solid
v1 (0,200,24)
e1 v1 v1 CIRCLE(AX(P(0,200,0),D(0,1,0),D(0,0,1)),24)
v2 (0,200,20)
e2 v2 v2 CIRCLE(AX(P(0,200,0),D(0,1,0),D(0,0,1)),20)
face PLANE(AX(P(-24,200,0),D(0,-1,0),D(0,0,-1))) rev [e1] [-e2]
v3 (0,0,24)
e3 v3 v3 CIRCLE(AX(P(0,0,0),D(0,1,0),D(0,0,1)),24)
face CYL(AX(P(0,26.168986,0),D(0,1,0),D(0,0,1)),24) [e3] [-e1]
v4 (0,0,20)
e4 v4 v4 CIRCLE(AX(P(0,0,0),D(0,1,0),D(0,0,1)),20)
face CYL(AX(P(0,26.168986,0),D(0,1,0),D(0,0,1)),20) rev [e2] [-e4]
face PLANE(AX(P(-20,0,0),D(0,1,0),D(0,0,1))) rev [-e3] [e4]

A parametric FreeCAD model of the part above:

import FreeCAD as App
import Part
import Sketcher
from FreeCAD import Vector
Q = App.Units.Quantity


def add_polygon(sketch, points):
    """Adds a closed chain of lines whose ends are joined by coincident constraints."""
    first, n = sketch.GeometryCount, len(points)
    for a, b in zip(points, points[1:] + points[:1]):
        sketch.addGeometry(Part.LineSegment(App.Vector(*a, 0), App.Vector(*b, 0)), False)
    for i in range(n):
        sketch.addConstraint(Sketcher.Constraint("Coincident", first + i, 2, first + (i + 1) % n, 1))

doc = App.newDocument("Part")
body = doc.addObject("PartDesign::Body", "Body")

# Sketch on XY plane
sketch1 = doc.addObject("Sketcher::SketchObject", "Sketch")
body.addObject(sketch1)
sketch1.AttachmentSupport = (doc.XY_Plane, [""])
sketch1.MapMode = "FlatFace"
add_polygon(sketch1, [(-24, 200), (-24, 0), (-20, 0), (-20, 200)])  # lines 0-3
sketch1.addConstraint([
    Sketcher.Constraint("Vertical", 0),
    Sketcher.Constraint("Horizontal", 1),
    Sketcher.Constraint("Vertical", 2),
    Sketcher.Constraint("Horizontal", 3),
    Sketcher.Constraint("PointOnObject", 0, 2, -1),
    Sketcher.Constraint("DistanceX", 1, 1, 1, 2, Q("4 mm")),
    Sketcher.Constraint("DistanceY", 0, 2, 0, 1, Q("200 mm")),
    Sketcher.Constraint("DistanceX", 0, 2, -1, 1, Q("24 mm")),
])
revolution = doc.addObject("PartDesign::Revolution", "Revolution")
body.addObject(revolution)
revolution.Profile = sketch1
revolution.ReferenceAxis = (sketch1, ["V_Axis"])
revolution.Angle = 360

doc.recompute()
